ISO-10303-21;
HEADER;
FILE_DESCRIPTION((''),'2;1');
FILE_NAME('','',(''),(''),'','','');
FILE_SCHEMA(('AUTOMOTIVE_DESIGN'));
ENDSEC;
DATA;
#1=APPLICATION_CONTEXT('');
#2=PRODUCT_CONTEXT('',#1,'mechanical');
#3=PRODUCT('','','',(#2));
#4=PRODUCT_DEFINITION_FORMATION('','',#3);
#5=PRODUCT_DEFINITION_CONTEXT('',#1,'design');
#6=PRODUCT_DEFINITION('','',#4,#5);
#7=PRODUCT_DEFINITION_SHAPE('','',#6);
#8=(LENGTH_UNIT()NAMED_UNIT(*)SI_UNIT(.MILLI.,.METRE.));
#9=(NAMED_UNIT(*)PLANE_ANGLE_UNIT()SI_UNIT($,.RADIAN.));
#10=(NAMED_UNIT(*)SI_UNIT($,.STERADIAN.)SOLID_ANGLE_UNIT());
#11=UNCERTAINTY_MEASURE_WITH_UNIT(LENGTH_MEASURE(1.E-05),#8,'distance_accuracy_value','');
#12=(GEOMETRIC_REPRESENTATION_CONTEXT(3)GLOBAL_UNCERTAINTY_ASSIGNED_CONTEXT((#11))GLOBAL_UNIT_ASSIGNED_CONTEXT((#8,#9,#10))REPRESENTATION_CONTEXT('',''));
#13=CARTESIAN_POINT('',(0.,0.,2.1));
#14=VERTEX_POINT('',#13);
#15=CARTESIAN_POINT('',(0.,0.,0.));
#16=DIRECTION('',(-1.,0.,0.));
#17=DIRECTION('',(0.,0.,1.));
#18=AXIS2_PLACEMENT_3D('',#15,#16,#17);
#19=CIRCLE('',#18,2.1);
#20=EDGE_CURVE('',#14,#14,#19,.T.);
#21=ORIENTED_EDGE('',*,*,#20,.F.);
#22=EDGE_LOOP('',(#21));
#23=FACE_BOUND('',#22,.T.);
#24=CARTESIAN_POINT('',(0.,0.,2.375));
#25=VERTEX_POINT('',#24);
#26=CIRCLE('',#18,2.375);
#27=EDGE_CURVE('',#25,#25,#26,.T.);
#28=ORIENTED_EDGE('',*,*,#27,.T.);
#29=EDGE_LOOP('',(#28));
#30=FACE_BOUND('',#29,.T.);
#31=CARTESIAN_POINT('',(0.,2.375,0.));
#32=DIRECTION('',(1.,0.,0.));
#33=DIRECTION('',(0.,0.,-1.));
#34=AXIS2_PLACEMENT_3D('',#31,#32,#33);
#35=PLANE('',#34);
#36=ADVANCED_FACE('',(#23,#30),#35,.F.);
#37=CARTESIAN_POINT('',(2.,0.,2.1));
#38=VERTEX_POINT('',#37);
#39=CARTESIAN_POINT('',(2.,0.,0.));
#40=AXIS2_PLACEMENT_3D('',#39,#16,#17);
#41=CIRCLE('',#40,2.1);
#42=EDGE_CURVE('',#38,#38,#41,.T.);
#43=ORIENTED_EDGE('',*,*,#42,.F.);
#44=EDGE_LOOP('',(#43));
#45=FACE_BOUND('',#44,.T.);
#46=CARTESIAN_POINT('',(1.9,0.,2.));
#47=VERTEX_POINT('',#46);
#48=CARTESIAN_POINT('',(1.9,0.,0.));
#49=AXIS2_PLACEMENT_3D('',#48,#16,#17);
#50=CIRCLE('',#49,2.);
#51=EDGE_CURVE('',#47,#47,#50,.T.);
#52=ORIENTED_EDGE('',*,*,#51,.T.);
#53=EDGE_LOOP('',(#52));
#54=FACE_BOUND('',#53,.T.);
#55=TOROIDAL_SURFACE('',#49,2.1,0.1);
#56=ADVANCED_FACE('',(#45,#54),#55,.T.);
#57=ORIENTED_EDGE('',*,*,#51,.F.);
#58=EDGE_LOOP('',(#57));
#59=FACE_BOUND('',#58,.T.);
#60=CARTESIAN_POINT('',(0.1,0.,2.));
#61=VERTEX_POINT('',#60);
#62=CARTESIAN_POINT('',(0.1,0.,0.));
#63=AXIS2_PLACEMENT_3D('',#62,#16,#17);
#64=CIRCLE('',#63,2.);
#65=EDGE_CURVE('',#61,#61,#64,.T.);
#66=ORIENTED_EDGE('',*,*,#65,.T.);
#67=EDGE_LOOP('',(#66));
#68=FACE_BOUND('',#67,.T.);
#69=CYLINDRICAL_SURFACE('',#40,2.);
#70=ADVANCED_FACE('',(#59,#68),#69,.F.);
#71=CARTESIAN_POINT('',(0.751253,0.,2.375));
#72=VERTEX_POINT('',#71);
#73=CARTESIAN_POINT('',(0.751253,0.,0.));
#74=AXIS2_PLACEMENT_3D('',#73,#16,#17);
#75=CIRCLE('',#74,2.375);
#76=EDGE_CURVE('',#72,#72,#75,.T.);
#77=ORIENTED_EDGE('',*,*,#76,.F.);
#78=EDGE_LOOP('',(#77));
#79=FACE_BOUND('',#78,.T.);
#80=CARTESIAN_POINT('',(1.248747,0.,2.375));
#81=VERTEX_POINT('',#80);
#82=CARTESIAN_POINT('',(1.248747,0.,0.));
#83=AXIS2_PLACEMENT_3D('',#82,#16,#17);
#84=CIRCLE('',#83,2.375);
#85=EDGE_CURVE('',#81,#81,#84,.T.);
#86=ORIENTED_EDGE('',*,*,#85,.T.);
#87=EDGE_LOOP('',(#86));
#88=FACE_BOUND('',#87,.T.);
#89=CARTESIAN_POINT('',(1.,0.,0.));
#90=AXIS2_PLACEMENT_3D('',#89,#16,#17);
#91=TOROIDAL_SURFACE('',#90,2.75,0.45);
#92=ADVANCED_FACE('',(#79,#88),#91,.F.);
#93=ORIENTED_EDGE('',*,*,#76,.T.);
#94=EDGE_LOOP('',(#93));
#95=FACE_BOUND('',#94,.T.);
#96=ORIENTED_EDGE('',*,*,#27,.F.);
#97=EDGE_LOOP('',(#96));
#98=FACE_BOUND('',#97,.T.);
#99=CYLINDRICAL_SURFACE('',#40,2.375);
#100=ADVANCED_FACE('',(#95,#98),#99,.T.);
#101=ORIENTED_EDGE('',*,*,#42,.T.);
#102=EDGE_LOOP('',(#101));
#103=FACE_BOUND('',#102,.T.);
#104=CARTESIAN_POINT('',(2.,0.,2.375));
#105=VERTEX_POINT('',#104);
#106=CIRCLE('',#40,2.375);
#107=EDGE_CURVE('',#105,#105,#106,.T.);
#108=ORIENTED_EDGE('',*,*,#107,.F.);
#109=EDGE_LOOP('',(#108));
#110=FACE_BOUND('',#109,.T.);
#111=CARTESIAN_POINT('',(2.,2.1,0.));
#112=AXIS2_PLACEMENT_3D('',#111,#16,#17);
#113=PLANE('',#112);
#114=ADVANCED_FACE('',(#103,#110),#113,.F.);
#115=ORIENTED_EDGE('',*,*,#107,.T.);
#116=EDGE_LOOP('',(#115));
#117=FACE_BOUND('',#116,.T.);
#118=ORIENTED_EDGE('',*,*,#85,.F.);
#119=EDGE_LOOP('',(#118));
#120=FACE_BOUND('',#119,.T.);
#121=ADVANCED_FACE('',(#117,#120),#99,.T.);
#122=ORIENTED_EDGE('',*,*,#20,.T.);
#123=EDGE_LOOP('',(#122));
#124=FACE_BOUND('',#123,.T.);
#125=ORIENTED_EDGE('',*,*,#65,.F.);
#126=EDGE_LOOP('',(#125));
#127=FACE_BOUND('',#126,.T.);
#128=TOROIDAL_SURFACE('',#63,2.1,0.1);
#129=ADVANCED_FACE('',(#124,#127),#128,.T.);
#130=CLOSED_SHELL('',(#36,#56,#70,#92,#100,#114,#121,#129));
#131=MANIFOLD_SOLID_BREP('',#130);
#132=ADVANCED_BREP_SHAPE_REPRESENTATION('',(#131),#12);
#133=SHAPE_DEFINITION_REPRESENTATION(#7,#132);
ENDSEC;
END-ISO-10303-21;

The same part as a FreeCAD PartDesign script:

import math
import FreeCAD as App
import Part
import Sketcher
Q = App.Units.Quantity

doc = App.newDocument("Part")
body = doc.addObject("PartDesign::Body", "Body")

sketch1 = body.newObject("Sketcher::SketchObject", "Sketch")
sketch1.AttachmentSupport = (doc.getObject("XY_Plane"), [""])
sketch1.MapMode = "FlatFace"
sketch1.addGeometry([
    Part.LineSegment(App.Vector(0, 2.38, 0), App.Vector(0, 2.1, 0)),
    Part.ArcOfCircle(Part.Circle(App.Vector(0.1, 2.1, 0), App.Vector(0, 0, 1), 0.1), math.radians(180), math.radians(270)),
    Part.LineSegment(App.Vector(0.1, 2, 0), App.Vector(1.9, 2, 0)),
    Part.ArcOfCircle(Part.Circle(App.Vector(1.9, 2.1, 0), App.Vector(0, 0, 1), 0.1), math.radians(-90), math.radians(0)),
    Part.LineSegment(App.Vector(2, 2.1, 0), App.Vector(2, 2.38, 0)),
    Part.LineSegment(App.Vector(2, 2.38, 0), App.Vector(1.25, 2.38, 0)),
    Part.ArcOfCircle(Part.Circle(App.Vector(1, 2.75, 0), App.Vector(0, 0, 1), 0.45), math.radians(-124), math.radians(-56)),
    Part.LineSegment(App.Vector(0.75, 2.38, 0), App.Vector(0, 2.38, 0)),
], False)
sketch1.addConstraint([
    Sketcher.Constraint("Tangent", 0, 2, 1, 1),
    Sketcher.Constraint("Tangent", 1, 2, 2, 1),
    Sketcher.Constraint("Tangent", 2, 2, 3, 1),
    Sketcher.Constraint("Tangent", 3, 2, 4, 1),
    Sketcher.Constraint("Coincident", 4, 2, 5, 1),
    Sketcher.Constraint("Coincident", 5, 2, 6, 2),
    Sketcher.Constraint("Coincident", 6, 1, 7, 1),
    Sketcher.Constraint("Coincident", 7, 2, 0, 1),
    Sketcher.Constraint("Vertical", 0),
    Sketcher.Constraint("Horizontal", 2),
    Sketcher.Constraint("Vertical", 4),
    Sketcher.Constraint("Horizontal", 5),
    Sketcher.Constraint("Horizontal", 7),
    Sketcher.Constraint("Equal", 1, 3),
    Sketcher.Constraint("PointOnObject", 0, 2, -2),
    Sketcher.Constraint("Horizontal", 5, 2, 6, 1),
    Sketcher.Constraint("Equal", 5, 7),
    Sketcher.Constraint("Radius", 1, Q("0.1 mm")),
    Sketcher.Constraint("Radius", 6, Q("0.45 mm")),
    Sketcher.Constraint("DistanceX", 2, 1, 2, 2, Q("1.8 mm")),
    Sketcher.Constraint("DistanceY", -1, 1, 1, 2, Q("2 mm")),
    Sketcher.Constraint("DistanceY", 0, 2, 0, 1, Q("0.275 mm")),
    Sketcher.Constraint("DistanceY", -1, 1, 6, 3, Q("2.75 mm")),
])
revolution = body.newObject("PartDesign::Revolution", "Revolution")
revolution.Profile = sketch1
revolution.ReferenceAxis = (sketch1, ["H_Axis"])
revolution.Angle = 360

doc.recompute()
